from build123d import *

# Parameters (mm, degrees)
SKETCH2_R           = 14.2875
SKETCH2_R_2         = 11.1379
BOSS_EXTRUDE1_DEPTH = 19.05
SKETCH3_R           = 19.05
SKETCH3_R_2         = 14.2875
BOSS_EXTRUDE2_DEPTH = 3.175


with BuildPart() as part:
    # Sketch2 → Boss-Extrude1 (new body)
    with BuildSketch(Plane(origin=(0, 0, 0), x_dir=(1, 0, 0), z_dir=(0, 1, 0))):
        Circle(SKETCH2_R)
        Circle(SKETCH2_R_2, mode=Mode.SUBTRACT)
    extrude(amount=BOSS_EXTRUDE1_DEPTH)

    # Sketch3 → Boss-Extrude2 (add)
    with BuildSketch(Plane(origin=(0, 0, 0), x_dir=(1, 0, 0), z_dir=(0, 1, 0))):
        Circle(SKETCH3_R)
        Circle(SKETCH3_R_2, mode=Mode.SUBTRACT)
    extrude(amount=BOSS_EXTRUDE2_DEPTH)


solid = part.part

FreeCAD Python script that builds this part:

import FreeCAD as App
import Part
import Sketcher
Q = App.Units.Quantity

doc = App.newDocument("Part")
body = doc.addObject("PartDesign::Body", "Body")

# Sketch on XZ plane
sketch1 = body.newObject("Sketcher::SketchObject", "Sketch")
sketch1.AttachmentSupport = (doc.getObject("XZ_Plane"), [""])
sketch1.MapMode = "FlatFace"
sketch1.addGeometry(Part.Circle(App.Vector(0, 0, 0), App.Vector(0, 0, 1), 14.2875), False)
sketch1.addGeometry(Part.Circle(App.Vector(0, 0, 0), App.Vector(0, 0, 1), 11.1379), False)
sketch1.addConstraint(Sketcher.Constraint("Coincident", 0, 3, -1, 1))
sketch1.addConstraint(Sketcher.Constraint("Coincident", 1, 3, -1, 1))
sketch1.addConstraint(Sketcher.Constraint("Diameter", 0, Q("1.125 in")))
sketch1.addConstraint(Sketcher.Constraint("Diameter", 1, Q("0.877 in")))
pad1 = body.newObject("PartDesign::Pad", "Pad")
pad1.Profile = sketch1
pad1.Length = Q("0.75 in")
pad1.Reversed = True

# Sketch on XZ plane
sketch2 = body.newObject("Sketcher::SketchObject", "Sketch001")
sketch2.AttachmentSupport = (doc.getObject("XZ_Plane"), [""])
sketch2.MapMode = "FlatFace"
sketch2.addGeometry(Part.Circle(App.Vector(0, 0, 0), App.Vector(0, 0, 1), 19.05), False)
sketch2.addGeometry(Part.Circle(App.Vector(0, 0, 0), App.Vector(0, 0, 1), 14.2875), False)
sketch2.addConstraint(Sketcher.Constraint("Coincident", 0, 3, -1, 1))
sketch2.addConstraint(Sketcher.Constraint("Coincident", 1, 3, -1, 1))
sketch2.addConstraint(Sketcher.Constraint("Diameter", 0, Q("1.5 in")))
sketch2.addConstraint(Sketcher.Constraint("Diameter", 1, Q("1.125 in")))
pad2 = body.newObject("PartDesign::Pad", "Pad001")
pad2.Profile = sketch2
pad2.Length = Q("0.125 in")
pad2.Reversed = True

doc.recompute()
